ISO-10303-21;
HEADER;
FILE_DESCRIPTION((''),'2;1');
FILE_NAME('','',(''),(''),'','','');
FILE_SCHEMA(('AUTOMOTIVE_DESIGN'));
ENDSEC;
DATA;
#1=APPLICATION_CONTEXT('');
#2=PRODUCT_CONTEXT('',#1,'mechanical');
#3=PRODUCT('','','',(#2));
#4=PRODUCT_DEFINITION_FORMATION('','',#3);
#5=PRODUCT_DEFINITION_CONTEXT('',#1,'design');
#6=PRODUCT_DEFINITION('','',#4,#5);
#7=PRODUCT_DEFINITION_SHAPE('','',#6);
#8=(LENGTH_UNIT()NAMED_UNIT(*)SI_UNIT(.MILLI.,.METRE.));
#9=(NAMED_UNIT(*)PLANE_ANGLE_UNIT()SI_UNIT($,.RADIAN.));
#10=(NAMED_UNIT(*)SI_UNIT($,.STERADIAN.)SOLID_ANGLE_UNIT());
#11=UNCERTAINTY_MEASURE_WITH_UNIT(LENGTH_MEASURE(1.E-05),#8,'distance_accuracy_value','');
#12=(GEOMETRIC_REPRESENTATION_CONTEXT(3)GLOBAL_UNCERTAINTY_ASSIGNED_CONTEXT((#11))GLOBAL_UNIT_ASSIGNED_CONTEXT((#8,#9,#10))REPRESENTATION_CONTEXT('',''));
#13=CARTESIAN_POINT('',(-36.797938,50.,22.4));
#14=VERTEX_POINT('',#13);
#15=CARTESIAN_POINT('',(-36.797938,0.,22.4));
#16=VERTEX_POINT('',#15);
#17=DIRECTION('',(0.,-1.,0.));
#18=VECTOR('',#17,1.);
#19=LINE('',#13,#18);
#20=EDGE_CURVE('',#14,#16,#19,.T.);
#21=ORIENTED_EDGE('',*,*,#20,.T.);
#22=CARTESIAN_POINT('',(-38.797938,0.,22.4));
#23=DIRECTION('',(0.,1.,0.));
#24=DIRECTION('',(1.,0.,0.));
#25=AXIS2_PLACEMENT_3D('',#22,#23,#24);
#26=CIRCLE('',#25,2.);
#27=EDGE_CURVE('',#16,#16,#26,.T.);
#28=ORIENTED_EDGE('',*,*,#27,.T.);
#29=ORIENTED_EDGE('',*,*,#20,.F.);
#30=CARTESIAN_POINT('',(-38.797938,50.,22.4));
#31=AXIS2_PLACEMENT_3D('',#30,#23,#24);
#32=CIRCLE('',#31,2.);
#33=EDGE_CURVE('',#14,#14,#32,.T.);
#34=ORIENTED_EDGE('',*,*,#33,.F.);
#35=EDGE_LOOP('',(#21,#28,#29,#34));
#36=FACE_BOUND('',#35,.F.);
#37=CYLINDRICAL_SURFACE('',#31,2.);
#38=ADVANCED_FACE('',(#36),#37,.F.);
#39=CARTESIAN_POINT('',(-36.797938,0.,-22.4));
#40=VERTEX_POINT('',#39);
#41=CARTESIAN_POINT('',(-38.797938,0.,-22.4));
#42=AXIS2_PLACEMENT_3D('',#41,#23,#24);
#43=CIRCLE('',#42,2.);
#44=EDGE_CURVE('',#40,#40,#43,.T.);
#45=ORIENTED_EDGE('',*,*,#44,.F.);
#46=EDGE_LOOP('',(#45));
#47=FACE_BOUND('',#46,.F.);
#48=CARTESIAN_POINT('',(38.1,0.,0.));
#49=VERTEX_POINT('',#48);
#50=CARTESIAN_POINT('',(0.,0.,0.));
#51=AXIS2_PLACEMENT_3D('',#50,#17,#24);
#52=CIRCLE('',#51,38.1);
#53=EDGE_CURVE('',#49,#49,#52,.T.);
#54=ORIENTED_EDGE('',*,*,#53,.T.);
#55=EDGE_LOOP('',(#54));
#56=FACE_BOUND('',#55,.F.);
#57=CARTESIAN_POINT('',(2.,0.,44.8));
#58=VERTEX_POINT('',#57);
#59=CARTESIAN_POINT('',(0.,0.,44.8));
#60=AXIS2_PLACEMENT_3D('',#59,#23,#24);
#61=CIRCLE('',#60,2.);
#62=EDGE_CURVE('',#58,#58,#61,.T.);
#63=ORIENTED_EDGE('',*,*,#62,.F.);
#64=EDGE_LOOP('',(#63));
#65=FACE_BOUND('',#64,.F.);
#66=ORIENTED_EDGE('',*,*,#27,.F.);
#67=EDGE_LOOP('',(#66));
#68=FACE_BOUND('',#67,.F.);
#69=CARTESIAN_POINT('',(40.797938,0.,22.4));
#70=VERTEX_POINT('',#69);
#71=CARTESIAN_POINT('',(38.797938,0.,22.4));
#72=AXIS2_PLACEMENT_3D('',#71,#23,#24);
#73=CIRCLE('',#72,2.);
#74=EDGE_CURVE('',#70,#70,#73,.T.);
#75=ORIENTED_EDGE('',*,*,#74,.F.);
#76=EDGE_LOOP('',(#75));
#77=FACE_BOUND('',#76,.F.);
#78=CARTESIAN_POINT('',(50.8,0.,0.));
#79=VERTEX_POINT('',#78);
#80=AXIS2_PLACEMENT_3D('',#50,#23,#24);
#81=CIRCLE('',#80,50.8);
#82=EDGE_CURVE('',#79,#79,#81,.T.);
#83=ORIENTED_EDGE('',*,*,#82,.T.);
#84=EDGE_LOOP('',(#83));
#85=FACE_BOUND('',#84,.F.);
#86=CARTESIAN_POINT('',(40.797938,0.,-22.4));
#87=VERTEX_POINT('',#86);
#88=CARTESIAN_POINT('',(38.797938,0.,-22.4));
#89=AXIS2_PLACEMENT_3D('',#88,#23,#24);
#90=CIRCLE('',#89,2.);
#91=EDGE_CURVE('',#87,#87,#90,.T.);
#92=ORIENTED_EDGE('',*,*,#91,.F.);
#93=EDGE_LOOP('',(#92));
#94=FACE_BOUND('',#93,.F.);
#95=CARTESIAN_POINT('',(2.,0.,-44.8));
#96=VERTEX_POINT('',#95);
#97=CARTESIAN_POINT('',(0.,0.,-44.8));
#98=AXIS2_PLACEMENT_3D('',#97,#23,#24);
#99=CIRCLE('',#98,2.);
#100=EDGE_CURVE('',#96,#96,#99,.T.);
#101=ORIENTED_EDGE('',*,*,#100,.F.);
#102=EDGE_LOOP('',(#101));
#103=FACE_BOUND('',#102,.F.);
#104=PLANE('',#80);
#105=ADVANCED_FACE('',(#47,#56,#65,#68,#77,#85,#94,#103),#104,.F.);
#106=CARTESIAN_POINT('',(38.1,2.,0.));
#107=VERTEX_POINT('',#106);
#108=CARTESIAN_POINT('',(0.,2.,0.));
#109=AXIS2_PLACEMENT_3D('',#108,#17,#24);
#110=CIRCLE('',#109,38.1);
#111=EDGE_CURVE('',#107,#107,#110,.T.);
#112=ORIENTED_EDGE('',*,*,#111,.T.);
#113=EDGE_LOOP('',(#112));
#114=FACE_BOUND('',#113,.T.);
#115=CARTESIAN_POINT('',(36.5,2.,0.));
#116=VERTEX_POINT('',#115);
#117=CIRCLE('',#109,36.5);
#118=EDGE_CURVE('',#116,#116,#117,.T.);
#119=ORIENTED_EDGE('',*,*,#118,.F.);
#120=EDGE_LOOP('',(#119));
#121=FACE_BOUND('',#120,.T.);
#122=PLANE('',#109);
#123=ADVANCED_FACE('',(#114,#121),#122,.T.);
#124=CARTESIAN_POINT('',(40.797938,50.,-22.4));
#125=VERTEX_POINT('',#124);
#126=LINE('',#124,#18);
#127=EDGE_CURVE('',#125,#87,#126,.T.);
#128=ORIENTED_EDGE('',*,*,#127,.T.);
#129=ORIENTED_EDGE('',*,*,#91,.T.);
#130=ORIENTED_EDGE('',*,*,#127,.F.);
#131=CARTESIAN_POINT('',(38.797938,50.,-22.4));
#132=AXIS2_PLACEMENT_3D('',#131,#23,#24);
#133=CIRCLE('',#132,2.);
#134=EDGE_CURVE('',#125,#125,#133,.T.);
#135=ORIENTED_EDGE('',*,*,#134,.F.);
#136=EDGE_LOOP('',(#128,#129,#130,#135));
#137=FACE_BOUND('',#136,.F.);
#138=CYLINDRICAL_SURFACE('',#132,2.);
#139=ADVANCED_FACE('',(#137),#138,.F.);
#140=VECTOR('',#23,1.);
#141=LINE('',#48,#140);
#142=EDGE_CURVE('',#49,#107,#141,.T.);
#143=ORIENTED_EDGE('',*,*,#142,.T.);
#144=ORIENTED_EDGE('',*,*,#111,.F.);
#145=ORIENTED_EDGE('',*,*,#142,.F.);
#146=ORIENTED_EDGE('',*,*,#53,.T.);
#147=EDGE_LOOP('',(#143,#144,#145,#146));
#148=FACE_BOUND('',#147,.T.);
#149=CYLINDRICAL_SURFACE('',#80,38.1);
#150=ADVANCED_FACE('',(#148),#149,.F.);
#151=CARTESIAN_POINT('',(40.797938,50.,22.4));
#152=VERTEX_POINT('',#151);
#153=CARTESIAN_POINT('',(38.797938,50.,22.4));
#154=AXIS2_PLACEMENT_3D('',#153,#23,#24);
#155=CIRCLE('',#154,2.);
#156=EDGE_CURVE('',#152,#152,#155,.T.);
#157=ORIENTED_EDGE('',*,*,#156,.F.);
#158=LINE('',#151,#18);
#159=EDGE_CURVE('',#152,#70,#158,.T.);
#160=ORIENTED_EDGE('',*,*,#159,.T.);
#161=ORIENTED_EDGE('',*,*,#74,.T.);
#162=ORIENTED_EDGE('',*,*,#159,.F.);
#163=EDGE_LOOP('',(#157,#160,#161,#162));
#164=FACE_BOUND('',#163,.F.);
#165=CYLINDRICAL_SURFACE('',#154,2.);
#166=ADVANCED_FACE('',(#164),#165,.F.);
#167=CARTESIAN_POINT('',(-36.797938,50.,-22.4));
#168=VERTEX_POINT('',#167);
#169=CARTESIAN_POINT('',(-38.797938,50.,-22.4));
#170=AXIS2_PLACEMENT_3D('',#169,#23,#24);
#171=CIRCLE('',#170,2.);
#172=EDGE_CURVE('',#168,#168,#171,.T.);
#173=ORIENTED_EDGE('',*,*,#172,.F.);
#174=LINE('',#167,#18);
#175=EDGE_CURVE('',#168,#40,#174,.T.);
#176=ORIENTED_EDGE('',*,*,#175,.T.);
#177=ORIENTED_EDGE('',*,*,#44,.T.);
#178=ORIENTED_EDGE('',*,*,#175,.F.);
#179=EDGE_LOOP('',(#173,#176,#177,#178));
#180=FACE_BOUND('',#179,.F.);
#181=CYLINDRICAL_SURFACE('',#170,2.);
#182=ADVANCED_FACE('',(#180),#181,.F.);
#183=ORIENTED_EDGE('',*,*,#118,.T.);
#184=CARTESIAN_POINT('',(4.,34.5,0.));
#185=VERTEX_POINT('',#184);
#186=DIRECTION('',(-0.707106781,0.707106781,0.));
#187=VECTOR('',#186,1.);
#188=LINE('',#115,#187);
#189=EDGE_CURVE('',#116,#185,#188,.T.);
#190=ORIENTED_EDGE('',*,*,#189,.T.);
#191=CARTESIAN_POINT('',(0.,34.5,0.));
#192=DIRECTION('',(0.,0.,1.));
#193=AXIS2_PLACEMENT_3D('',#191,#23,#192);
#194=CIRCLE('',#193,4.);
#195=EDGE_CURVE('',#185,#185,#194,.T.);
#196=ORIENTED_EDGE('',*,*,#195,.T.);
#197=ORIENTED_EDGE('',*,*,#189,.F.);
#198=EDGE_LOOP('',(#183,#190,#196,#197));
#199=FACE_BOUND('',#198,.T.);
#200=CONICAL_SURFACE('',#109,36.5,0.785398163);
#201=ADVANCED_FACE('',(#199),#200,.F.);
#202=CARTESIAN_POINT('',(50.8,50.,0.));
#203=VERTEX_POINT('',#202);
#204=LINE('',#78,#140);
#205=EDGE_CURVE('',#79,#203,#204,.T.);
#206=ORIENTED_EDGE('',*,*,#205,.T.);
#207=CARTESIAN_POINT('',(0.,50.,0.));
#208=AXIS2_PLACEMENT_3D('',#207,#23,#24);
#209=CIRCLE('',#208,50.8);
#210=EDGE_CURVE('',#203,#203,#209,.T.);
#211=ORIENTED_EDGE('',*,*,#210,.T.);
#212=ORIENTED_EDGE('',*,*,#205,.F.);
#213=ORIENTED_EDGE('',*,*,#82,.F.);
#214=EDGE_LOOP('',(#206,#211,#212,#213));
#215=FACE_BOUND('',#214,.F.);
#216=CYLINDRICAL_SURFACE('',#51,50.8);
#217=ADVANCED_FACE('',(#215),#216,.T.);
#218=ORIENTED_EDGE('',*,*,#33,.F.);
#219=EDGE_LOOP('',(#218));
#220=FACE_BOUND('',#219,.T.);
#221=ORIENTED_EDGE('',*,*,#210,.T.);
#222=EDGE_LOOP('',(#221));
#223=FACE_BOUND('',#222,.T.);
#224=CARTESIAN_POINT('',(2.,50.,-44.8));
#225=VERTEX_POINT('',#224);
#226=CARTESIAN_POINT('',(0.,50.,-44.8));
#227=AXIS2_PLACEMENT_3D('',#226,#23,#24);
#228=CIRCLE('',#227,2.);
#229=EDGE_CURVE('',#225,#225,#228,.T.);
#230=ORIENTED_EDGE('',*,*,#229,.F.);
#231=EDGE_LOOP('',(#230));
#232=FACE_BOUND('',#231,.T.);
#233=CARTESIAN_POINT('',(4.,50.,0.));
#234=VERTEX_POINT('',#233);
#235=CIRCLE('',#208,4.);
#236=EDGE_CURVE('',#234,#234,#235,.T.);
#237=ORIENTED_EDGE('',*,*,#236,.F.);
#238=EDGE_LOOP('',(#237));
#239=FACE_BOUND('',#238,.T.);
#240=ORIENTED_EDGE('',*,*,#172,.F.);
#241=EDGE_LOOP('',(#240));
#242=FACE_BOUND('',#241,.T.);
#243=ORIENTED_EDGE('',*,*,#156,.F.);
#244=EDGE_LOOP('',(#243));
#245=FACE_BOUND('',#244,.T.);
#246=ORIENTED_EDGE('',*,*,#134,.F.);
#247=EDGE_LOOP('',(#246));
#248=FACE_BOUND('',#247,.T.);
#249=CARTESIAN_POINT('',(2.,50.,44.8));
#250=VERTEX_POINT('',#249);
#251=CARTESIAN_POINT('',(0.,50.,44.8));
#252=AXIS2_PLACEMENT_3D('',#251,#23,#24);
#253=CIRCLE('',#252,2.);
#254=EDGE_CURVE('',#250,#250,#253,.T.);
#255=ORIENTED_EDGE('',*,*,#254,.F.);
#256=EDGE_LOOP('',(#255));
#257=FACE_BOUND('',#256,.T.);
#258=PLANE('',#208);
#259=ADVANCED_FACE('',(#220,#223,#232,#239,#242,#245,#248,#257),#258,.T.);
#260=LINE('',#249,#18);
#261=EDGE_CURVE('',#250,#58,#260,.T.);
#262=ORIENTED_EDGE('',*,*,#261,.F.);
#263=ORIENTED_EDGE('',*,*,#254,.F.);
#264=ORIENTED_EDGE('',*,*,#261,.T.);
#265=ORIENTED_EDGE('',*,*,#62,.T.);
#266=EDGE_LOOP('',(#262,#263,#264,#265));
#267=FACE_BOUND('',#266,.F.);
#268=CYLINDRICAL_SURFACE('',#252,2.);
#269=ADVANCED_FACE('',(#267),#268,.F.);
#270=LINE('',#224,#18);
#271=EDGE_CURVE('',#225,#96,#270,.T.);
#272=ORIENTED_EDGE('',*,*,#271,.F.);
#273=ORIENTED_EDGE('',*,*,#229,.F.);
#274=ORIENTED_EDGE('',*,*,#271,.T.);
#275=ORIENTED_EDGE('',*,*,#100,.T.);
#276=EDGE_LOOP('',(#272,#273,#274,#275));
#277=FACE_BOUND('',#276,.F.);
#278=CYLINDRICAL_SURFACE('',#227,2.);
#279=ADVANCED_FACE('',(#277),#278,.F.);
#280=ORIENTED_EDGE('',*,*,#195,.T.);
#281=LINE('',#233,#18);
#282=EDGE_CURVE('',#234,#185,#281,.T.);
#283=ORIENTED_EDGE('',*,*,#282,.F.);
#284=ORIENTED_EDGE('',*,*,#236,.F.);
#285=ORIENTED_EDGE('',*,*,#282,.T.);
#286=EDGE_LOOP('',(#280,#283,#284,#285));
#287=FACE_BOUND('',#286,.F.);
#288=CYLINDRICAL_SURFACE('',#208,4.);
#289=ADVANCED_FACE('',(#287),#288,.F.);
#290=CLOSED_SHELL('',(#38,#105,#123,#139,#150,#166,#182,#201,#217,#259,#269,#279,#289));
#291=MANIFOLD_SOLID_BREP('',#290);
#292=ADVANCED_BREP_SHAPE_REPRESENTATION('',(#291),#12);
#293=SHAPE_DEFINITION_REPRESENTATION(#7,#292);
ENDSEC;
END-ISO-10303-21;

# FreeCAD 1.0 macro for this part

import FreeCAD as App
import Part
import Sketcher
from FreeCAD import Vector
Q = App.Units.Quantity


def add_polygon(sketch, points):
    """Adds a closed chain of lines whose ends are joined by coincident constraints."""
    first, n = sketch.GeometryCount, len(points)
    for a, b in zip(points, points[1:] + points[:1]):
        sketch.addGeometry(Part.LineSegment(App.Vector(*a, 0), App.Vector(*b, 0)), False)
    for i in range(n):
        sketch.addConstraint(Sketcher.Constraint("Coincident", first + i, 2, first + (i + 1) % n, 1))

doc = App.newDocument("Part")
params = doc.addObject("Spreadsheet::Sheet", "Params")
for row, (alias, value) in enumerate([
    ("sketch1_diameter", "101.6 mm"),
    ("pad1_length", "50 mm"),
    ("sketch2_height", "2 mm"),
    ("sketch2_width", "38.1 mm"),
    ("sketch2_width2", "1.6 mm"),
    ("groove_angle", "360 deg"),
    ("sketch3_diameter", "8 mm"),
    ("sketch3_diameter2", "4 mm"),
    ("pocket1_length", "71 mm"),
], start=1):
    params.set(f"A{row}", alias)
    params.set(f"B{row}", "=" + value)
    params.setAlias(f"B{row}", alias)

body = doc.addObject("PartDesign::Body", "Body")

# Sketch on XZ plane
sketch1 = body.newObject("Sketcher::SketchObject", "Sketch")
sketch1.AttachmentSupport = (doc.getObject("XZ_Plane"), [""])
sketch1.MapMode = "FlatFace"
sketch1.addGeometry(Part.Circle(Vector(0, 0, 0), Vector(0, 0, 1), 51), False)
sketch1.addConstraint(Sketcher.Constraint("Coincident", 0, 3, -1, 1))
sketch1.addConstraint(Sketcher.Constraint("Diameter", 0, Q("101.6 mm")))
sketch1.setExpression("Constraints[1]", "Params.sketch1_diameter")
pad1 = body.newObject("PartDesign::Pad", "Pad")
pad1.Profile = sketch1
pad1.setExpression("Length", "Params.pad1_length")
pad1.Reversed = True

# Sketch on XY plane
sketch2 = body.newObject("Sketcher::SketchObject", "Sketch001")
sketch2.AttachmentSupport = (doc.getObject("XY_Plane"), [""])
sketch2.MapMode = "FlatFace"
add_polygon(sketch2, [(0, 0), (38.1, 0), (38.1, 2), (36.5, 2), (0, 38.5)])  # lines 0-4
sketch2.addConstraint(Sketcher.Constraint("Horizontal", 0))
sketch2.addConstraint(Sketcher.Constraint("Vertical", 1))
sketch2.addConstraint(Sketcher.Constraint("Horizontal", 2))
sketch2.addConstraint(Sketcher.Constraint("Vertical", 4))
sketch2.addConstraint(Sketcher.Constraint("Coincident", 4, 2, -1, 1))
sketch2.addConstraint(Sketcher.Constraint("DistanceY", 1, 1, 1, 2, Q("2 mm")))
sketch2.addConstraint(Sketcher.Constraint("Angle", 3, Q("135 deg")))
sketch2.addConstraint(Sketcher.Constraint("DistanceX", 0, 1, 0, 2, Q("38.1 mm")))
sketch2.addConstraint(Sketcher.Constraint("DistanceX", 2, 2, 2, 1, Q("1.6 mm")))
sketch2.setExpression("Constraints[10]", "Params.sketch2_height")
sketch2.setExpression("Constraints[12]", "Params.sketch2_width")
sketch2.setExpression("Constraints[13]", "Params.sketch2_width2")
groove = body.newObject("PartDesign::Groove", "Groove")
groove.Profile = sketch2
groove.ReferenceAxis = (sketch2, ["V_Axis"])
groove.setExpression("Angle", "Params.groove_angle")

# Sketch on XZ plane
sketch3 = body.newObject("Sketcher::SketchObject", "Sketch002")
sketch3.AttachmentSupport = (doc.getObject("XZ_Plane"), [""])
sketch3.MapMode = "FlatFace"
sketch3.AttachmentOffset = App.Placement(Vector(0, 0, -50), App.Rotation())
sketch3.addGeometry(Part.Circle(Vector(0, 0, 0), Vector(0, 0, 1), 4), False)
sketch3.addGeometry(Part.Circle(Vector(0, -44.8, 0), Vector(0, 0, 1), 2), False)
sketch3.addGeometry(Part.Circle(Vector(38.8, -22.4, 0), Vector(0, 0, 1), 2), False)
sketch3.addGeometry(Part.Circle(Vector(38.8, 22.4, 0), Vector(0, 0, 1), 2), False)
sketch3.addGeometry(Part.Circle(Vector(0, 44.8, 0), Vector(0, 0, 1), 2), False)
sketch3.addGeometry(Part.Circle(Vector(-38.8, 22.4, 0), Vector(0, 0, 1), 2), False)
sketch3.addGeometry(Part.Circle(Vector(-38.8, -22.4, 0), Vector(0, 0, 1), 2), False)
sketch3.addConstraint(Sketcher.Constraint("Coincident", 0, 3, -1, 1))
sketch3.addConstraint(Sketcher.Constraint("Equal", 1, 2))
sketch3.addConstraint(Sketcher.Constraint("Equal", 2, 3))
sketch3.addConstraint(Sketcher.Constraint("Equal", 3, 4))
sketch3.addConstraint(Sketcher.Constraint("Equal", 4, 5))
sketch3.addConstraint(Sketcher.Constraint("Equal", 5, 6))
sketch3.addConstraint(Sketcher.Constraint("Symmetric", 1, 3, 4, 3, -1, 1))
sketch3.addConstraint(Sketcher.Constraint("Symmetric", 2, 3, 5, 3, -1, 1))
sketch3.addConstraint(Sketcher.Constraint("Symmetric", 3, 3, 6, 3, -1, 1))
sketch3.addConstraint(Sketcher.Constraint("Symmetric", 3, 3, 5, 3, -2))
sketch3.addConstraint(Sketcher.Constraint("PointOnObject", 1, 3, -2))
sketch3.addConstraint(Sketcher.Constraint("Diameter", 0, Q("8 mm")))
sketch3.addConstraint(Sketcher.Constraint("Diameter", 1, Q("4 mm")))
sketch3.addConstraint(Sketcher.Constraint("DistanceY", 1, 3, -1, 1, Q("44.8 mm")))
sketch3.addConstraint(Sketcher.Constraint("DistanceY", 2, 3, -1, 1, Q("22.4 mm")))
sketch3.addConstraint(Sketcher.Constraint("DistanceX", -1, 1, 2, 3, Q("38.797938 mm")))
sketch3.setExpression("Constraints[11]", "Params.sketch3_diameter")
sketch3.setExpression("Constraints[12]", "Params.sketch3_diameter2")
pocket1 = body.newObject("PartDesign::Pocket", "Pocket")
pocket1.Profile = sketch3
pocket1.setExpression("Length", "Params.pocket1_length")
pocket1.Reversed = True

doc.recompute()
